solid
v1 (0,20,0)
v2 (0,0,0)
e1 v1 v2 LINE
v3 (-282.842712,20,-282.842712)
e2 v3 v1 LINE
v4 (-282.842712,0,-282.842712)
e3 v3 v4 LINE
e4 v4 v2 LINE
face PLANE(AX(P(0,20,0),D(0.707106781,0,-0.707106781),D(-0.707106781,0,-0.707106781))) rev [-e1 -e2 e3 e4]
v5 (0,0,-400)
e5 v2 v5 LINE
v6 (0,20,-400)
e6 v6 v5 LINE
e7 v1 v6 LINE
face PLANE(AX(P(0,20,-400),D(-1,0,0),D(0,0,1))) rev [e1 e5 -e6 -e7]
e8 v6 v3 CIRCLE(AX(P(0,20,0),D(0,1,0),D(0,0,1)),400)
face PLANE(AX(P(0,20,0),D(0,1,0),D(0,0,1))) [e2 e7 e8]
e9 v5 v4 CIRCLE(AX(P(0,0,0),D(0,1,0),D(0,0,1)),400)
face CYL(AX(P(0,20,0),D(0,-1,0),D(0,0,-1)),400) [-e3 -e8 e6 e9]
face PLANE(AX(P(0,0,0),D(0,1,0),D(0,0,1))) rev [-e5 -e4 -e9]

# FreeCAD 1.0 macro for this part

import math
import FreeCAD as App
import Part
import Sketcher
from FreeCAD import Vector
Q = App.Units.Quantity

doc = App.newDocument("Part")
body = doc.addObject("PartDesign::Body", "Body")

# Sketch on XZ plane
sketch1 = body.newObject("Sketcher::SketchObject", "Sketch")
sketch1.AttachmentSupport = (doc.getObject("XZ_Plane"), [""])
sketch1.MapMode = "FlatFace"
sketch1.addGeometry(Part.LineSegment(Vector(0, 0, 0), Vector(0, -400, 0)), False)
sketch1.addGeometry(Part.ArcOfCircle(Part.Circle(Vector(0, 0, 0), Vector(0, 0, 1), 400), math.radians(-135), math.radians(-90)), False)
sketch1.addGeometry(Part.LineSegment(Vector(-283, -283, 0), Vector(0, 0, 0)), False)
sketch1.addConstraint(Sketcher.Constraint("Coincident", 0, 2, 1, 2))
sketch1.addConstraint(Sketcher.Constraint("Coincident", 1, 1, 2, 1))
sketch1.addConstraint(Sketcher.Constraint("Coincident", 2, 2, 0, 1))
sketch1.addConstraint(Sketcher.Constraint("Vertical", 0))
sketch1.addConstraint(Sketcher.Constraint("Coincident", 1, 3, -1, 1))
sketch1.addConstraint(Sketcher.Constraint("Coincident", 2, 2, -1, 1))
sketch1.addConstraint(Sketcher.Constraint("Radius", 1, Q("400 mm")))
sketch1.addConstraint(Sketcher.Constraint("Angle", 2, Q("45 deg")))
pad1 = body.newObject("PartDesign::Pad", "Pad")
pad1.Profile = sketch1
pad1.Length = 20
pad1.Reversed = True

doc.recompute()
